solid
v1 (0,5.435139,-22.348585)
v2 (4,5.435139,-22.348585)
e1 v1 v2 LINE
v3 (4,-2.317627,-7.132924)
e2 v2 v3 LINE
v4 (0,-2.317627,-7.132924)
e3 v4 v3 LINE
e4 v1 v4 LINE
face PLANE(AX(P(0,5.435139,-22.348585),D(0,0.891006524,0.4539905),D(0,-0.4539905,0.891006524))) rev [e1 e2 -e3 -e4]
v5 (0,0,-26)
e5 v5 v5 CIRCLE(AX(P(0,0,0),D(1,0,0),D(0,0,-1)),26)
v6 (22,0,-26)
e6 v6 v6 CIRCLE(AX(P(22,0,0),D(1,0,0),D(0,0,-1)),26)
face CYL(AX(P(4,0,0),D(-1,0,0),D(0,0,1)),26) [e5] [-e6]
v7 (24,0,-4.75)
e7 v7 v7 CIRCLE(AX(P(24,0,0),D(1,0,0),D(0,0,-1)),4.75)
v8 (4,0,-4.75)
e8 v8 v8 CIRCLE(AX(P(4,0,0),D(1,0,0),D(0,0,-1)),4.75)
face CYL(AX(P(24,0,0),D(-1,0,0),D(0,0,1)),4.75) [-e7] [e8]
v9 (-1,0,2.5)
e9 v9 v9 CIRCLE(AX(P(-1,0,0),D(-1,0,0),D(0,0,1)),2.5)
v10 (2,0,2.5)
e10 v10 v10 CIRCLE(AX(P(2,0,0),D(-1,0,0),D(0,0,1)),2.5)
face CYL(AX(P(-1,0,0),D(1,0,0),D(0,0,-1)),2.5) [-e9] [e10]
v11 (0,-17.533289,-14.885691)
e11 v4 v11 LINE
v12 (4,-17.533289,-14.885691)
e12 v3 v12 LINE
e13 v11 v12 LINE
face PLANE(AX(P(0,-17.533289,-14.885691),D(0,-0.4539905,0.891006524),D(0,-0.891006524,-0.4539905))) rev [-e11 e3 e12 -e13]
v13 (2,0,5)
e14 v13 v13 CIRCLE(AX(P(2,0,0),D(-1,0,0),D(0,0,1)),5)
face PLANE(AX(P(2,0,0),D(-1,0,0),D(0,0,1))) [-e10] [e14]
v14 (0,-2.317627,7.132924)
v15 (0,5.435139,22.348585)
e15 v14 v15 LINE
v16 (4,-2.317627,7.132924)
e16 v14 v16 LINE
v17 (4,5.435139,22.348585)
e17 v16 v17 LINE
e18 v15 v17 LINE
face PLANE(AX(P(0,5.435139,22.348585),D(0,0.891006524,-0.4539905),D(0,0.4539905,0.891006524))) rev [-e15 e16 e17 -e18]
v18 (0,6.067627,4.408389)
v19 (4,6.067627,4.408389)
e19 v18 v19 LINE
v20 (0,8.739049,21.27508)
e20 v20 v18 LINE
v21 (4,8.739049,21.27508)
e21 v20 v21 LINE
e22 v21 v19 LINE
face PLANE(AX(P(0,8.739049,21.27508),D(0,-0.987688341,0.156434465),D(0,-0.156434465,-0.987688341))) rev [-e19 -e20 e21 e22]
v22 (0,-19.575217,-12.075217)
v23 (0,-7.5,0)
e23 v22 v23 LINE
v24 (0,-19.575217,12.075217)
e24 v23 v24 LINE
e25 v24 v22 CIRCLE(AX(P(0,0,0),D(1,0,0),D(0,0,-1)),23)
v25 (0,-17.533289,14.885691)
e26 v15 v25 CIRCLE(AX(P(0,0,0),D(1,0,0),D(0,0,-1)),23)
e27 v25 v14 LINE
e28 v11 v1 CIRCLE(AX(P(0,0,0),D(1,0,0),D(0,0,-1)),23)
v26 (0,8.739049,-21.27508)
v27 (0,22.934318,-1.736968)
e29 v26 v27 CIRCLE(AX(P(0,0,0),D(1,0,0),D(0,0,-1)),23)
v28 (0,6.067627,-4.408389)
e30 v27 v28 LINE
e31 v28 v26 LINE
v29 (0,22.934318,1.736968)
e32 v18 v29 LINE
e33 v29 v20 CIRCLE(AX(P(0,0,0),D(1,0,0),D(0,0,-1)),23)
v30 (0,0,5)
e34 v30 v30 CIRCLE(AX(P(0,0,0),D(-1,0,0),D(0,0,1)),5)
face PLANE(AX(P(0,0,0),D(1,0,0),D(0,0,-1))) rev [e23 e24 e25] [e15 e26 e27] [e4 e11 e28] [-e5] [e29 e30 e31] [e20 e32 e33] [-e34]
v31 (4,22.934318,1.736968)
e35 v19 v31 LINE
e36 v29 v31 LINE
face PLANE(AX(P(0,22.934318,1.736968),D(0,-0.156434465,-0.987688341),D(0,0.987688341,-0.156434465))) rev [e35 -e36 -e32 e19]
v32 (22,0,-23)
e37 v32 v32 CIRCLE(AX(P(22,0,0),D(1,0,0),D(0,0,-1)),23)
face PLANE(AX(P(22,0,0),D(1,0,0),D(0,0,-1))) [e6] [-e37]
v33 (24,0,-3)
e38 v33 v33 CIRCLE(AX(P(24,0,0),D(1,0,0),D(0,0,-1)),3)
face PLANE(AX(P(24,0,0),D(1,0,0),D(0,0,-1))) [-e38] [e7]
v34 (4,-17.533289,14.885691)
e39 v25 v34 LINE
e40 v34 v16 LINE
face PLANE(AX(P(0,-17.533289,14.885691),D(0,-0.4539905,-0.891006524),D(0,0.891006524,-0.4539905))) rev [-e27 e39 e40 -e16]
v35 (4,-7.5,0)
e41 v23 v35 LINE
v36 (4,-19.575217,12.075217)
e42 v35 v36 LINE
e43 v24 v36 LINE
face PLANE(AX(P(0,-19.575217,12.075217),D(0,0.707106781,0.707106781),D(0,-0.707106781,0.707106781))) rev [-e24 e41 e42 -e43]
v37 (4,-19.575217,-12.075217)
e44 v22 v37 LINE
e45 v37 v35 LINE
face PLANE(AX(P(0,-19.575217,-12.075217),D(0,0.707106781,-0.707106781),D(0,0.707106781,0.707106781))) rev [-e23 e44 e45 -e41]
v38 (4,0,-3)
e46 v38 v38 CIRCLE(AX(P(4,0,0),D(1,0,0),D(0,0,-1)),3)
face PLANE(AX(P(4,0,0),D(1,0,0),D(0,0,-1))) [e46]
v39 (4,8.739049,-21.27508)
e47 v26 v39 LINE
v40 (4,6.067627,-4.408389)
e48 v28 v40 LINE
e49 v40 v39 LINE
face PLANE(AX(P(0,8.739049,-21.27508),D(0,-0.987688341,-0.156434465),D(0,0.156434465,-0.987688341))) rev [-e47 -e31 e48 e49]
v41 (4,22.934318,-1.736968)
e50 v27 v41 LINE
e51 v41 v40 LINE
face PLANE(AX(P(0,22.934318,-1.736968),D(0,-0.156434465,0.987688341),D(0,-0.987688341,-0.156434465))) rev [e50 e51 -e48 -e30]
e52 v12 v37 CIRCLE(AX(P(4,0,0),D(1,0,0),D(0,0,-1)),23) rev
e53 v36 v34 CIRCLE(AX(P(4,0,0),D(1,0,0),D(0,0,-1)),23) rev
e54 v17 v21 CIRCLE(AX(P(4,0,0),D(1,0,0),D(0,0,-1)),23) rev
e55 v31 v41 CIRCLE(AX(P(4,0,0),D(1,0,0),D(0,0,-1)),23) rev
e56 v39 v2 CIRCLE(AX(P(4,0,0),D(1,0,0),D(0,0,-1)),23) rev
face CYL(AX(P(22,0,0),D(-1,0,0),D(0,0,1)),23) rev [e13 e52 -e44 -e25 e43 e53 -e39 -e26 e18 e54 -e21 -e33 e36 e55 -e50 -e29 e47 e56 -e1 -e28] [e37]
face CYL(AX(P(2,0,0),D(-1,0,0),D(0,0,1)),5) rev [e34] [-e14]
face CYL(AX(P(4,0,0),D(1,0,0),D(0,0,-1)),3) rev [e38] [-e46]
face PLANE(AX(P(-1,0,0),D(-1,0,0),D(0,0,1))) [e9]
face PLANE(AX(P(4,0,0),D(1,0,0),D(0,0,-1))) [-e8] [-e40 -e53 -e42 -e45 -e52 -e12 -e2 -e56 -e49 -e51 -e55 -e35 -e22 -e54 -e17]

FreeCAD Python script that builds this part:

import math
import FreeCAD as App
import Part
import Sketcher
Q = App.Units.Quantity

doc = App.newDocument("Part")
body = doc.addObject("PartDesign::Body", "Body")

sketch1 = body.newObject("Sketcher::SketchObject", "Sketch")
sketch1.AttachmentSupport = (doc.getObject("YZ_Plane"), [""])
sketch1.MapMode = "FlatFace"
sketch1.addGeometry(Part.Circle(App.Vector(0, 0, 0), App.Vector(0, 0, 1), 26), False)
sketch1.addConstraint([
    Sketcher.Constraint("Coincident", 0, 3, -1, 1),
    Sketcher.Constraint("Diameter", 0, 52.0),
])
pad1 = body.newObject("PartDesign::Pad", "Pad")
pad1.Profile = sketch1
pad1.Length = 4

sketch2 = body.newObject("Sketcher::SketchObject", "Sketch001")
sketch2.AttachmentSupport = (doc.getObject("YZ_Plane"), [""])
sketch2.MapMode = "FlatFace"
sketch2.AttachmentOffset = App.Placement(App.Vector(0, 0, 4), App.Rotation())
sketch2.addGeometry(Part.Circle(App.Vector(0, 0, 0), App.Vector(0, 0, 1), 4.75), False)
sketch2.addConstraint([
    Sketcher.Constraint("Coincident", 0, 3, -1, 1),
    Sketcher.Constraint("Diameter", 0, 9.5),
])
pad2 = body.newObject("PartDesign::Pad", "Pad001")
pad2.Profile = sketch2
pad2.Length = 20

sketch3 = body.newObject("Sketcher::SketchObject", "Sketch002")
sketch3.AttachmentSupport = (doc.getObject("YZ_Plane"), [""])
sketch3.MapMode = "FlatFace"
sketch3.AttachmentOffset = App.Placement(App.Vector(0, 0, 24), App.Rotation())
sketch3.addGeometry(Part.Circle(App.Vector(0, 0, 0), App.Vector(0, 0, 1), 3), False)
sketch3.addConstraint([
    Sketcher.Constraint("Coincident", 0, 3, -1, 1),
    Sketcher.Constraint("Diameter", 0, 6.0),
])
pocket1 = body.newObject("PartDesign::Pocket", "Pocket")
pocket1.Profile = sketch3
pocket1.Length = 20

sketch4 = body.newObject("Sketcher::SketchObject", "Sketch003")
sketch4.AttachmentSupport = (doc.getObject("YZ_Plane"), [""])
sketch4.MapMode = "FlatFace"
sketch4.AttachmentOffset = App.Placement(App.Vector(0, 0, 4), App.Rotation())
sketch4.addGeometry([
    Part.Circle(App.Vector(0, 0, 0), App.Vector(0, 0, 1), 26),
    Part.Circle(App.Vector(0, 0, 0), App.Vector(0, 0, 1), 23),
], False)
sketch4.addConstraint([
    Sketcher.Constraint("Coincident", 0, 3, -1, 1),
    Sketcher.Constraint("Coincident", 1, 3, -1, 1),
    Sketcher.Constraint("Diameter", 0, 52.0),
    Sketcher.Constraint("Diameter", 1, 46.0),
])
pad3 = body.newObject("PartDesign::Pad", "Pad002")
pad3.Profile = sketch4
pad3.Length = 18

sketch5 = body.newObject("Sketcher::SketchObject", "Sketch004")
sketch5.AttachmentSupport = (doc.getObject("YZ_Plane"), [""])
sketch5.MapMode = "FlatFace"
sketch5.AttachmentOffset = App.Placement(App.Vector(0, 0, 4), App.Rotation())
sketch5.addGeometry([
    Part.LineSegment(App.Vector(8.739049, 21.27508, 0), App.Vector(6.067627, 4.408389, 0)),
    Part.LineSegment(App.Vector(6.067627, 4.408389, 0), App.Vector(22.934318, 1.736968, 0)),
    Part.ArcOfCircle(Part.Circle(App.Vector(0, 0, 0), App.Vector(0, 0, 1), 23), math.radians(4.331121), math.radians(67.668879)),
    Part.LineSegment(App.Vector(6.067627, -4.408389, 0), App.Vector(8.739049, -21.27508, 0)),
    Part.ArcOfCircle(Part.Circle(App.Vector(0, 0, 0), App.Vector(0, 0, 1), 23), math.radians(-67.668879), math.radians(-4.331121)),
    Part.LineSegment(App.Vector(22.934318, -1.736968, 0), App.Vector(6.067627, -4.408389, 0)),
    Part.LineSegment(App.Vector(-2.317627, -7.132924, 0), App.Vector(-17.533289, -14.885691, 0)),
    Part.ArcOfCircle(Part.Circle(App.Vector(0, 0, 0), App.Vector(0, 0, 1), 23), math.radians(-139.668879), math.radians(-76.331121)),
    Part.LineSegment(App.Vector(5.435139, -22.348585, 0), App.Vector(-2.317627, -7.132924, 0)),
    Part.LineSegment(App.Vector(-7.5, 0, 0), App.Vector(-19.575217, 12.075217, 0)),
    Part.ArcOfCircle(Part.Circle(App.Vector(0, 0, 0), App.Vector(0, 0, 1), 23), math.radians(148.331121), math.radians(211.668879)),
    Part.LineSegment(App.Vector(-19.575217, -12.075217, 0), App.Vector(-7.5, 0, 0)),
    Part.LineSegment(App.Vector(-2.317627, 7.132924, 0), App.Vector(5.435139, 22.348585, 0)),
    Part.ArcOfCircle(Part.Circle(App.Vector(0, 0, 0), App.Vector(0, 0, 1), 23), math.radians(76.331121), math.radians(139.668879)),
    Part.LineSegment(App.Vector(-17.533289, 14.885691, 0), App.Vector(-2.317627, 7.132924, 0)),
], False)
sketch5.addConstraint([
    Sketcher.Constraint("Coincident", 0, 2, 1, 1),
    Sketcher.Constraint("Coincident", 1, 2, 2, 1),
    Sketcher.Constraint("Coincident", 2, 2, 0, 1),
    Sketcher.Constraint("Coincident", 3, 2, 4, 1),
    Sketcher.Constraint("Coincident", 4, 2, 5, 1),
    Sketcher.Constraint("Coincident", 5, 2, 3, 1),
    Sketcher.Constraint("Coincident", 6, 2, 7, 1),
    Sketcher.Constraint("Coincident", 7, 2, 8, 1),
    Sketcher.Constraint("Coincident", 8, 2, 6, 1),
    Sketcher.Constraint("Coincident", 9, 2, 10, 1),
    Sketcher.Constraint("Coincident", 10, 2, 11, 1),
    Sketcher.Constraint("Coincident", 11, 2, 9, 1),
    Sketcher.Constraint("Coincident", 12, 2, 13, 1),
    Sketcher.Constraint("Coincident", 13, 2, 14, 1),
    Sketcher.Constraint("Coincident", 14, 2, 12, 1),
    Sketcher.Constraint("Coincident", 2, 3, -1, 1),
    Sketcher.Constraint("Coincident", 4, 3, -1, 1),
    Sketcher.Constraint("Coincident", 7, 3, -1, 1),
    Sketcher.Constraint("Coincident", 10, 3, -1, 1),
    Sketcher.Constraint("Coincident", 13, 3, -1, 1),
    Sketcher.Constraint("Equal", 2, 4),
    Sketcher.Constraint("Equal", 4, 7),
    Sketcher.Constraint("Equal", 7, 10),
    Sketcher.Constraint("Equal", 10, 13),
    Sketcher.Constraint("Symmetric", 0, 2, 5, 2, -1),
    Sketcher.Constraint("Symmetric", 8, 2, 14, 2, -1),
    Sketcher.Constraint("PointOnObject", 11, 2, -1),
    Sketcher.Constraint("Perpendicular", 0, 1),
    Sketcher.Constraint("Perpendicular", 3, 5),
    Sketcher.Constraint("Perpendicular", 6, 8),
    Sketcher.Constraint("Perpendicular", 9, 11),
    Sketcher.Constraint("Perpendicular", 12, 14),
    Sketcher.Constraint("Vertical", 2, 2, 3, 2),
    Sketcher.Constraint("Vertical", 9, 2, 10, 2),
    Sketcher.Constraint("Vertical", 7, 2, 12, 2),
    Sketcher.Constraint("Equal", 0, 1),
    Sketcher.Constraint("Equal", 5, 6),
    Sketcher.Constraint("Equal", 6, 8),
    Sketcher.Constraint("Equal", 8, 9),
    Sketcher.Constraint("Radius", 2, 23.0),
    Sketcher.Constraint("Angle", 0, Q("-99 deg")),
    Sketcher.Constraint("Angle", 6, Q("-153 deg")),
    Sketcher.Constraint("DistanceX", 11, 2, -1, 1, 7.5),
])
pocket2 = body.newObject("PartDesign::Pocket", "Pocket001")
pocket2.Profile = sketch5
pocket2.Type = "ThroughAll"

sketch6 = body.newObject("Sketcher::SketchObject", "Sketch005")
sketch6.AttachmentSupport = (doc.getObject("YZ_Plane"), [""])
sketch6.MapMode = "FlatFace"
sketch6.addGeometry(Part.Circle(App.Vector(0, 0, 0), App.Vector(0, 0, 1), 5), False)
sketch6.addConstraint([
    Sketcher.Constraint("Coincident", 0, 3, -1, 1),
    Sketcher.Constraint("Diameter", 0, 10.0),
])
pocket3 = body.newObject("PartDesign::Pocket", "Pocket002")
pocket3.Profile = sketch6
pocket3.Length = 2
pocket3.Reversed = True

sketch7 = body.newObject("Sketcher::SketchObject", "Sketch006")
sketch7.AttachmentSupport = (doc.getObject("YZ_Plane"), [""])
sketch7.MapMode = "FlatFace"
sketch7.AttachmentOffset = App.Placement(App.Vector(0, 0, 2), App.Rotation())
sketch7.addGeometry(Part.Circle(App.Vector(0, 0, 0), App.Vector(0, 0, 1), 2.5), False)
sketch7.addConstraint([
    Sketcher.Constraint("Coincident", 0, 3, -1, 1),
    Sketcher.Constraint("Diameter", 0, 5.0),
])
pad4 = body.newObject("PartDesign::Pad", "Pad003")
pad4.Profile = sketch7
pad4.Length = 3
pad4.Reversed = True

doc.recompute()
